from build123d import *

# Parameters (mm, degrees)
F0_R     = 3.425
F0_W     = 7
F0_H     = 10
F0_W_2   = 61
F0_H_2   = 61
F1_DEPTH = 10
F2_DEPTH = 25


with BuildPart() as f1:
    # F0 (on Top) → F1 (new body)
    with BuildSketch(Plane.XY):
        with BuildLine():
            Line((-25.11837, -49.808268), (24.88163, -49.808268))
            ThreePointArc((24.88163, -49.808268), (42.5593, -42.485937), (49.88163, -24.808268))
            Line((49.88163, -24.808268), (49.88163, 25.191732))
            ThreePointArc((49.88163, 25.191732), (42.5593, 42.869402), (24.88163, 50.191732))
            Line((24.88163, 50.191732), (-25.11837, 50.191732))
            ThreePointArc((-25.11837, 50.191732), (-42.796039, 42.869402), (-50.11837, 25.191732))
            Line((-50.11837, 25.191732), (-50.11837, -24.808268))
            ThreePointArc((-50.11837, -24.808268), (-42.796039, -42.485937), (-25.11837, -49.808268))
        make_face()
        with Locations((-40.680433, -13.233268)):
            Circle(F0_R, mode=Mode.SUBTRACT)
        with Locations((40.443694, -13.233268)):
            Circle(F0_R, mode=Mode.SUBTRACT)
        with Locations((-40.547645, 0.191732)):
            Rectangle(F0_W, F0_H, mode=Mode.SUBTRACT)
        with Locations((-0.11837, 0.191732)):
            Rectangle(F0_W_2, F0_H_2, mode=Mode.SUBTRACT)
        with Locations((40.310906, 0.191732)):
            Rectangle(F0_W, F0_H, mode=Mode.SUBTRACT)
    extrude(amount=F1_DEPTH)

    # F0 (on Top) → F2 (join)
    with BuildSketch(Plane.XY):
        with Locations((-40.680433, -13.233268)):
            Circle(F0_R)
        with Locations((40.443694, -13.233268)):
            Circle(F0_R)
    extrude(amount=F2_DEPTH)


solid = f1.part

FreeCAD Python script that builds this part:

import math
import FreeCAD as App
import Part
import Sketcher

V = App.Vector

doc = App.newDocument("Part")
body = doc.addObject("PartDesign::Body", "Body")

# Sketch on XY plane
sketch1 = body.newObject("Sketcher::SketchObject", "Sketch")
sketch1.AttachmentSupport = (doc.getObject("XY_Plane"), [""])
sketch1.MapMode = "FlatFace"
sketch1.addGeometry(Part.LineSegment(V(-25.1, -49.8, 0), V(24.9, -49.8, 0)), False)
sketch1.addGeometry(Part.ArcOfCircle(Part.Circle(V(24.9, -24.8, 0), V(0, 0, 1), 25), math.radians(-90), math.radians(0)), False)
sketch1.addGeometry(Part.LineSegment(V(49.9, -24.8, 0), V(49.9, 25.2, 0)), False)
sketch1.addGeometry(Part.ArcOfCircle(Part.Circle(V(24.9, 25.2, 0), V(0, 0, 1), 25), math.radians(0), math.radians(90)), False)
sketch1.addGeometry(Part.LineSegment(V(24.9, 50.2, 0), V(-25.1, 50.2, 0)), False)
sketch1.addGeometry(Part.ArcOfCircle(Part.Circle(V(-25.1, 25.2, 0), V(0, 0, 1), 25), math.radians(90), math.radians(180)), False)
sketch1.addGeometry(Part.LineSegment(V(-50.1, 25.2, 0), V(-50.1, -24.8, 0)), False)
sketch1.addGeometry(Part.ArcOfCircle(Part.Circle(V(-25.1, -24.8, 0), V(0, 0, 1), 25), math.radians(-180), math.radians(-90)), False)
sketch1.addGeometry(Part.Circle(V(-40.7, -13.2, 0), V(0, 0, 1), 3.4), False)
sketch1.addGeometry(Part.Circle(V(40.4, -13.2, 0), V(0, 0, 1), 3.4), False)
sketch1.addGeometry(Part.LineSegment(V(-37, -4.8, 0), V(-44, -4.8, 0)), False)
sketch1.addGeometry(Part.LineSegment(V(-44, -4.8, 0), V(-44, 5.2, 0)), False)
sketch1.addGeometry(Part.LineSegment(V(-44, 5.2, 0), V(-37, 5.2, 0)), False)
sketch1.addGeometry(Part.LineSegment(V(-37, 5.2, 0), V(-37, -4.8, 0)), False)
sketch1.addGeometry(Part.LineSegment(V(30.4, -30.3, 0), V(-30.6, -30.3, 0)), False)
sketch1.addGeometry(Part.LineSegment(V(-30.6, -30.3, 0), V(-30.6, 30.7, 0)), False)
sketch1.addGeometry(Part.LineSegment(V(-30.6, 30.7, 0), V(30.4, 30.7, 0)), False)
sketch1.addGeometry(Part.LineSegment(V(30.4, 30.7, 0), V(30.4, -30.3, 0)), False)
sketch1.addGeometry(Part.LineSegment(V(43.8, -4.8, 0), V(36.8, -4.8, 0)), False)
sketch1.addGeometry(Part.LineSegment(V(36.8, -4.8, 0), V(36.8, 5.2, 0)), False)
sketch1.addGeometry(Part.LineSegment(V(36.8, 5.2, 0), V(43.8, 5.2, 0)), False)
sketch1.addGeometry(Part.LineSegment(V(43.8, 5.2, 0), V(43.8, -4.8, 0)), False)
sketch1.addConstraint(Sketcher.Constraint("Tangent", 0, 2, 1, 1))
sketch1.addConstraint(Sketcher.Constraint("Tangent", 1, 2, 2, 1))
sketch1.addConstraint(Sketcher.Constraint("Tangent", 2, 2, 3, 1))
sketch1.addConstraint(Sketcher.Constraint("Tangent", 3, 2, 4, 1))
sketch1.addConstraint(Sketcher.Constraint("Tangent", 4, 2, 5, 1))
sketch1.addConstraint(Sketcher.Constraint("Tangent", 5, 2, 6, 1))
sketch1.addConstraint(Sketcher.Constraint("Tangent", 6, 2, 7, 1))
sketch1.addConstraint(Sketcher.Constraint("Tangent", 7, 2, 0, 1))
sketch1.addConstraint(Sketcher.Constraint("Coincident", 10, 2, 11, 1))
sketch1.addConstraint(Sketcher.Constraint("Coincident", 11, 2, 12, 1))
sketch1.addConstraint(Sketcher.Constraint("Coincident", 12, 2, 13, 1))
sketch1.addConstraint(Sketcher.Constraint("Coincident", 13, 2, 10, 1))
sketch1.addConstraint(Sketcher.Constraint("Coincident", 14, 2, 15, 1))
sketch1.addConstraint(Sketcher.Constraint("Coincident", 15, 2, 16, 1))
sketch1.addConstraint(Sketcher.Constraint("Coincident", 16, 2, 17, 1))
sketch1.addConstraint(Sketcher.Constraint("Coincident", 17, 2, 14, 1))
sketch1.addConstraint(Sketcher.Constraint("Coincident", 18, 2, 19, 1))
sketch1.addConstraint(Sketcher.Constraint("Coincident", 19, 2, 20, 1))
sketch1.addConstraint(Sketcher.Constraint("Coincident", 20, 2, 21, 1))
sketch1.addConstraint(Sketcher.Constraint("Coincident", 21, 2, 18, 1))
sketch1.addConstraint(Sketcher.Constraint("Horizontal", 0))
sketch1.addConstraint(Sketcher.Constraint("Vertical", 2))
sketch1.addConstraint(Sketcher.Constraint("Horizontal", 4))
sketch1.addConstraint(Sketcher.Constraint("Vertical", 6))
sketch1.addConstraint(Sketcher.Constraint("Horizontal", 10))
sketch1.addConstraint(Sketcher.Constraint("Vertical", 11))
sketch1.addConstraint(Sketcher.Constraint("Horizontal", 12))
sketch1.addConstraint(Sketcher.Constraint("Vertical", 13))
sketch1.addConstraint(Sketcher.Constraint("Horizontal", 14))
sketch1.addConstraint(Sketcher.Constraint("Vertical", 15))
sketch1.addConstraint(Sketcher.Constraint("Horizontal", 16))
sketch1.addConstraint(Sketcher.Constraint("Vertical", 17))
sketch1.addConstraint(Sketcher.Constraint("Horizontal", 18))
sketch1.addConstraint(Sketcher.Constraint("Vertical", 19))
sketch1.addConstraint(Sketcher.Constraint("Horizontal", 20))
sketch1.addConstraint(Sketcher.Constraint("Vertical", 21))
sketch1.addConstraint(Sketcher.Constraint("Equal", 1, 3))
sketch1.addConstraint(Sketcher.Constraint("Equal", 3, 5))
sketch1.addConstraint(Sketcher.Constraint("Equal", 5, 7))
sketch1.addConstraint(Sketcher.Constraint("Equal", 8, 9))
sketch1.addConstraint(Sketcher.Constraint("Horizontal", 8, 3, 9, 3))
sketch1.addConstraint(Sketcher.Constraint("Horizontal", 13, 2, 18, 2))
sketch1.addConstraint(Sketcher.Constraint("Horizontal", 12, 2, 19, 2))
sketch1.addConstraint(Sketcher.Constraint("Equal", 12, 18))
sketch1.addConstraint(Sketcher.Constraint("Equal", 4, 2))
sketch1.addConstraint(Sketcher.Constraint("Equal", 16, 15))
sketch1.addConstraint(Sketcher.Constraint("Radius", 1, 25.0))
sketch1.addConstraint(Sketcher.Constraint("Diameter", 8, 6.85))
sketch1.addConstraint(Sketcher.Constraint("DistanceX", 0, 1, 0, 2, 50.0))
sketch1.addConstraint(Sketcher.Constraint("DistanceX", 10, 2, 10, 1, 7.0))
sketch1.addConstraint(Sketcher.Constraint("DistanceX", 14, 2, 14, 1, 61.0))
sketch1.addConstraint(Sketcher.Constraint("DistanceY", 11, 1, 11, 2, 10.0))
sketch1.addConstraint(Sketcher.Constraint("DistanceY", 6, 2, 10, 2, 20.0))
sketch1.addConstraint(Sketcher.Constraint("DistanceX", 14, 2, 7, 3, 5.500002))
sketch1.addConstraint(Sketcher.Constraint("DistanceY", 14, 2, 7, 3, 5.500002))
sketch1.addConstraint(Sketcher.Constraint("DistanceY", 7, 3, 8, 3, 11.574998))
sketch1.addConstraint(Sketcher.Constraint("DistanceX", -1, 1, 1, 3, 24.88163))
sketch1.addConstraint(Sketcher.Constraint("DistanceY", -1, 1, 5, 3, 25.191732))
sketch1.addConstraint(Sketcher.Constraint("DistanceX", 8, 3, -1, 1, 40.680433))
sketch1.addConstraint(Sketcher.Constraint("DistanceX", -1, 1, 9, 3, 40.443694))
sketch1.addConstraint(Sketcher.Constraint("DistanceX", 10, 2, -1, 1, 44.047645))
sketch1.addConstraint(Sketcher.Constraint("DistanceX", -1, 1, 18, 2, 36.810906))
pad1 = body.newObject("PartDesign::Pad", "Pad")
pad1.Profile = sketch1
pad1.Length = 10

# Sketch on XY plane
sketch2 = body.newObject("Sketcher::SketchObject", "Sketch001")
sketch2.AttachmentSupport = (doc.getObject("XY_Plane"), [""])
sketch2.MapMode = "FlatFace"
sketch2.addGeometry(Part.Circle(V(-40.7, -13.2, 0), V(0, 0, 1), 3.4), False)
sketch2.addGeometry(Part.Circle(V(40.4, -13.2, 0), V(0, 0, 1), 3.4), False)
sketch2.addConstraint(Sketcher.Constraint("Equal", 0, 1))
sketch2.addConstraint(Sketcher.Constraint("Horizontal", 0, 3, 1, 3))
sketch2.addConstraint(Sketcher.Constraint("Diameter", 0, 6.85))
sketch2.addConstraint(Sketcher.Constraint("DistanceY", 0, 3, -1, 1, 13.233268))
sketch2.addConstraint(Sketcher.Constraint("DistanceX", 0, 3, -1, 1, 40.680433))
sketch2.addConstraint(Sketcher.Constraint("DistanceX", -1, 1, 1, 3, 40.443694))
pad2 = body.newObject("PartDesign::Pad", "Pad001")
pad2.Profile = sketch2
pad2.Length = 25

doc.recompute()
